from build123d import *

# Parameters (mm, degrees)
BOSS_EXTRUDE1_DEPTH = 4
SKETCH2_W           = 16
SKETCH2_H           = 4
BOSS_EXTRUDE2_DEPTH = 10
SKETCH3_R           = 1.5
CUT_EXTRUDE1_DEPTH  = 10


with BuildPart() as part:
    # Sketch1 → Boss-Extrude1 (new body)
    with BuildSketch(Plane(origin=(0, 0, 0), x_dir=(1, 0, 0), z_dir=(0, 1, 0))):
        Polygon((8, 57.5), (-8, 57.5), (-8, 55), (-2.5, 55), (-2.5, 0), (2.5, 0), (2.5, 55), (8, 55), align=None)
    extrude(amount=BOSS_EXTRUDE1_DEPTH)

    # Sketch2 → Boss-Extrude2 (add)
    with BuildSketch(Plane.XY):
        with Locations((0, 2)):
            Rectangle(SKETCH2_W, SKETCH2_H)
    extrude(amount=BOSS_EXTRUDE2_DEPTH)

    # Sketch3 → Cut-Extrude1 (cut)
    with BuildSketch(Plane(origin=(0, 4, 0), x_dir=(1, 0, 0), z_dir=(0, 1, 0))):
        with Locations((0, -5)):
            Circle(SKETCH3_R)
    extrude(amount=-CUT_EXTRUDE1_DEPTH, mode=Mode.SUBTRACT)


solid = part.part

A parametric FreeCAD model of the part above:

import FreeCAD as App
import Part
import Sketcher
from FreeCAD import Vector

doc = App.newDocument("Part")
body = doc.addObject("PartDesign::Body", "Body")

sketch1 = doc.addObject("Sketcher::SketchObject", "Sketch")
body.addObject(sketch1)
sketch1.AttachmentSupport = (doc.XZ_Plane, [""])
sketch1.MapMode = "FlatFace"
sketch1.addGeometry([
    Part.LineSegment(Vector(8, -57.5, 0), Vector(-8, -57.5, 0)),
    Part.LineSegment(Vector(-8, -57.5, 0), Vector(-8, -55, 0)),
    Part.LineSegment(Vector(-8, -55, 0), Vector(-2.5, -55, 0)),
    Part.LineSegment(Vector(-2.5, -55, 0), Vector(-2.5, 0, 0)),
    Part.LineSegment(Vector(-2.5, 0, 0), Vector(2.5, 0, 0)),
    Part.LineSegment(Vector(2.5, 0, 0), Vector(2.5, -55, 0)),
    Part.LineSegment(Vector(2.5, -55, 0), Vector(8, -55, 0)),
    Part.LineSegment(Vector(8, -55, 0), Vector(8, -57.5, 0)),
], False)
sketch1.addConstraint([
    Sketcher.Constraint("Coincident", 0, 2, 1, 1),
    Sketcher.Constraint("Coincident", 1, 2, 2, 1),
    Sketcher.Constraint("Coincident", 2, 2, 3, 1),
    Sketcher.Constraint("Coincident", 3, 2, 4, 1),
    Sketcher.Constraint("Coincident", 4, 2, 5, 1),
    Sketcher.Constraint("Coincident", 5, 2, 6, 1),
    Sketcher.Constraint("Coincident", 6, 2, 7, 1),
    Sketcher.Constraint("Coincident", 7, 2, 0, 1),
    Sketcher.Constraint("Horizontal", 0),
    Sketcher.Constraint("Vertical", 1),
    Sketcher.Constraint("Horizontal", 2),
    Sketcher.Constraint("Vertical", 3),
    Sketcher.Constraint("Horizontal", 4),
    Sketcher.Constraint("Vertical", 5),
    Sketcher.Constraint("Horizontal", 6),
    Sketcher.Constraint("Vertical", 7),
    Sketcher.Constraint("Symmetric", 3, 2, 4, 2, -1, 1),
    Sketcher.Constraint("Symmetric", 1, 2, 6, 2, -2),
    Sketcher.Constraint("DistanceX", 0, 2, 0, 1, 16.0),
    Sketcher.Constraint("DistanceX", 4, 1, 4, 2, 5.0),
    Sketcher.Constraint("DistanceY", 3, 1, 3, 2, 55.0),
    Sketcher.Constraint("DistanceY", 1, 1, 1, 2, 2.5),
])
pad1 = doc.addObject("PartDesign::Pad", "Pad")
body.addObject(pad1)
pad1.Profile = sketch1
pad1.Length = 4
pad1.Reversed = True

sketch2 = doc.addObject("Sketcher::SketchObject", "Sketch001")
body.addObject(sketch2)
sketch2.AttachmentSupport = (doc.XY_Plane, [""])
sketch2.MapMode = "FlatFace"
sketch2.addGeometry([
    Part.LineSegment(Vector(-8, 4, 0), Vector(-8, 0, 0)),
    Part.LineSegment(Vector(-8, 0, 0), Vector(8, 0, 0)),
    Part.LineSegment(Vector(8, 0, 0), Vector(8, 4, 0)),
    Part.LineSegment(Vector(8, 4, 0), Vector(-8, 4, 0)),
], False)
sketch2.addConstraint([
    Sketcher.Constraint("Coincident", 0, 2, 1, 1),
    Sketcher.Constraint("Coincident", 1, 2, 2, 1),
    Sketcher.Constraint("Coincident", 2, 2, 3, 1),
    Sketcher.Constraint("Coincident", 3, 2, 0, 1),
    Sketcher.Constraint("Vertical", 0),
    Sketcher.Constraint("Horizontal", 1),
    Sketcher.Constraint("Vertical", 2),
    Sketcher.Constraint("Horizontal", 3),
    Sketcher.Constraint("Symmetric", 0, 2, 1, 2, -1, 1),
    Sketcher.Constraint("DistanceX", 1, 1, 1, 2, 16.0),
    Sketcher.Constraint("DistanceY", 0, 2, 0, 1, 4.0),
])
pad2 = doc.addObject("PartDesign::Pad", "Pad001")
body.addObject(pad2)
pad2.Profile = sketch2
pad2.Length = 10

sketch3 = doc.addObject("Sketcher::SketchObject", "Sketch002")
body.addObject(sketch3)
sketch3.AttachmentSupport = (doc.XZ_Plane, [""])
sketch3.MapMode = "FlatFace"
sketch3.AttachmentOffset = App.Placement(Vector(0, 0, -4), App.Rotation())
sketch3.addGeometry(Part.Circle(Vector(0, 5, 0), Vector(0, 0, 1), 1.5), False)
sketch3.addConstraint([
    Sketcher.Constraint("PointOnObject", 0, 3, -2),
    Sketcher.Constraint("Diameter", 0, 3.0),
    Sketcher.Constraint("DistanceY", -1, 1, 0, 3, 5.0),
])
pocket1 = doc.addObject("PartDesign::Pocket", "Pocket")
body.addObject(pocket1)
pocket1.Profile = sketch3
pocket1.Length = 10
pocket1.Reversed = True

doc.recompute()
